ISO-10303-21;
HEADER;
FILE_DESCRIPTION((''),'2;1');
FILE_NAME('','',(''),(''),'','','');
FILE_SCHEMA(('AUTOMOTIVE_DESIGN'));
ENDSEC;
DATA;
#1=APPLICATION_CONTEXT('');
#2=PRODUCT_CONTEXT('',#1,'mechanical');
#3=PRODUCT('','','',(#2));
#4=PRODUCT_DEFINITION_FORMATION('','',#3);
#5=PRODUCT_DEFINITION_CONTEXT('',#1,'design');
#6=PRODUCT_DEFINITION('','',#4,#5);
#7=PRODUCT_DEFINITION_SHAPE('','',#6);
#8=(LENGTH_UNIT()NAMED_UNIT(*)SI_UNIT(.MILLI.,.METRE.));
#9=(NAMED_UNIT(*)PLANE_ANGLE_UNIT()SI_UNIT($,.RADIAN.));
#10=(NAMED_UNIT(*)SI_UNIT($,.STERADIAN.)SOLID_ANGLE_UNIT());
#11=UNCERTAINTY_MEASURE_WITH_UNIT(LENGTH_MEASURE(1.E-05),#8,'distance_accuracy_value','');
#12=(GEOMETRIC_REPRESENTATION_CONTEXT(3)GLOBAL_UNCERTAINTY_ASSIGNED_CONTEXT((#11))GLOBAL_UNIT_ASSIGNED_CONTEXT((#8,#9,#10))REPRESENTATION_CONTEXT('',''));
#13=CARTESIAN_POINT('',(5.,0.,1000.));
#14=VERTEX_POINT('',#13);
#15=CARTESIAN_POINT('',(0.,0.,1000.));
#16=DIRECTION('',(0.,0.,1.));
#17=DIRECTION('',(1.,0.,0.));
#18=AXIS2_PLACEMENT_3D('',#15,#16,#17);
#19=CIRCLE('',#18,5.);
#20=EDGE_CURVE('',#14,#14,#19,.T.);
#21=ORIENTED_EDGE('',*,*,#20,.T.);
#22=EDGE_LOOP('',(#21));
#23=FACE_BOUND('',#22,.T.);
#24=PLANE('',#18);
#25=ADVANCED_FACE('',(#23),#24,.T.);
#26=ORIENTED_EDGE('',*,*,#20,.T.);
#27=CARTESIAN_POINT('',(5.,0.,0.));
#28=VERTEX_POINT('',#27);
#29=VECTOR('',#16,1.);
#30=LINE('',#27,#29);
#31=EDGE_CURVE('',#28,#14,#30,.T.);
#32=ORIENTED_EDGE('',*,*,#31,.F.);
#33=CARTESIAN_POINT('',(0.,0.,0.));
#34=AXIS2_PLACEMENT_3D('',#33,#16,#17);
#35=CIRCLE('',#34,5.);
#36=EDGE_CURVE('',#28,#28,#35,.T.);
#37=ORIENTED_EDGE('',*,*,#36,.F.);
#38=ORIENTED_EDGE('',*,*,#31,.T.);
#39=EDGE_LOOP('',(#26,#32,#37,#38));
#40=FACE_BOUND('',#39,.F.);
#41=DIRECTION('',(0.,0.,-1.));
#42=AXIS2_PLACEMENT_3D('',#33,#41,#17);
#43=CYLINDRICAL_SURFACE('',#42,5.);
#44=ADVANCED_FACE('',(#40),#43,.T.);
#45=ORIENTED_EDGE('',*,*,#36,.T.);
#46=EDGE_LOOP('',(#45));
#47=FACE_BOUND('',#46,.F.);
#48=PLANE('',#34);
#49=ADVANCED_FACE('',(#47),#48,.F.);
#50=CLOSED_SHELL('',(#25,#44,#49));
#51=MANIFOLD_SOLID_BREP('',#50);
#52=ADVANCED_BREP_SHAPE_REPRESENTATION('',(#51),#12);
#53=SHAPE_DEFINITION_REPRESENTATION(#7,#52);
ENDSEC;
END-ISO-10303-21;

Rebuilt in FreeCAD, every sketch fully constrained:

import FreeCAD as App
import Part
import Sketcher

V = App.Vector
Q = App.Units.Quantity

doc = App.newDocument("Part")
params = doc.addObject("Spreadsheet::Sheet", "Params")
for row, (alias, value) in enumerate([
    ("sketch1_diameter", "10 mm"),
    ("pad1_length", "1000 mm"),
], start=1):
    params.set(f"A{row}", alias)
    params.set(f"B{row}", "=" + value)
    params.setAlias(f"B{row}", alias)

body = doc.addObject("PartDesign::Body", "Body")

# Sketch on XY plane
sketch1 = body.newObject("Sketcher::SketchObject", "Sketch")
sketch1.AttachmentSupport = (doc.getObject("XY_Plane"), [""])
sketch1.MapMode = "FlatFace"
sketch1.addGeometry(Part.Circle(V(0, 0, 0), V(0, 0, 1), 5), False)
sketch1.addConstraint([
    Sketcher.Constraint("Coincident", 0, 3, -1, 1),
    Sketcher.Constraint("Diameter", 0, Q("10 mm")),
])
sketch1.setExpression("Constraints[1]", "Params.sketch1_diameter")
pad1 = body.newObject("PartDesign::Pad", "Pad")
pad1.Profile = sketch1
pad1.setExpression("Length", "Params.pad1_length")

doc.recompute()
